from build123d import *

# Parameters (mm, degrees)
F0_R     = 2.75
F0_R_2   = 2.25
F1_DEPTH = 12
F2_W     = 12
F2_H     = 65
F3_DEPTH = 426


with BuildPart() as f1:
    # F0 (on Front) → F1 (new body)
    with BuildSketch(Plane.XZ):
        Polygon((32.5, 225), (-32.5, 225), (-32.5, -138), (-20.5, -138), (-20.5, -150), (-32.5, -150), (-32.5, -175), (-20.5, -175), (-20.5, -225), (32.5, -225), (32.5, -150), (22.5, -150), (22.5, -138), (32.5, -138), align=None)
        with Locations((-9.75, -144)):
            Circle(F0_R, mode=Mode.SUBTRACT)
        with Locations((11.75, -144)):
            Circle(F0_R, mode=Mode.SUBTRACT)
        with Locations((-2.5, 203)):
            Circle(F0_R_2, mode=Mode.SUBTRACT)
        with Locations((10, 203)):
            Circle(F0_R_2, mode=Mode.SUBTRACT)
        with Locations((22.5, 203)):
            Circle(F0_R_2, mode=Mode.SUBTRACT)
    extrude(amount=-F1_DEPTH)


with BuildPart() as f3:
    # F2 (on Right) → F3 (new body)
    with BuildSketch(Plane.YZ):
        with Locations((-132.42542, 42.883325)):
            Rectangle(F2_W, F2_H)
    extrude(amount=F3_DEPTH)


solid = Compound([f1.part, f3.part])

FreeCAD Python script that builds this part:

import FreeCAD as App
import Part
import Sketcher
Q = App.Units.Quantity


def add_polygon(sketch, points):
    """Adds a closed chain of lines whose ends are joined by coincident constraints."""
    first, n = sketch.GeometryCount, len(points)
    for a, b in zip(points, points[1:] + points[:1]):
        sketch.addGeometry(Part.LineSegment(App.Vector(*a, 0), App.Vector(*b, 0)), False)
    for i in range(n):
        sketch.addConstraint(Sketcher.Constraint("Coincident", first + i, 2, first + (i + 1) % n, 1))

doc = App.newDocument("Part")
body = doc.addObject("PartDesign::Body", "Body")

# Sketch on XZ plane
sketch1 = doc.addObject("Sketcher::SketchObject", "Sketch")
body.addObject(sketch1)
sketch1.AttachmentSupport = (doc.XZ_Plane, [""])
sketch1.MapMode = "FlatFace"
add_polygon(sketch1, [(32.5, 225), (-32.5, 225), (-32.5, -138), (-20.5, -138), (-20.5, -150), (-32.5, -150), (-32.5, -175), (-20.5, -175), (-20.5, -225), (32.5, -225), (32.5, -150), (22.5, -150), (22.5, -138), (32.5, -138)])  # lines 0-13
sketch1.addGeometry(Part.Circle(App.Vector(-9.75, -144, 0), App.Vector(0, 0, 1), 2.75), False)  # 14
sketch1.addGeometry(Part.Circle(App.Vector(11.75, -144, 0), App.Vector(0, 0, 1), 2.75), False)  # 15
sketch1.addGeometry(Part.Circle(App.Vector(-2.5, 203, 0), App.Vector(0, 0, 1), 2.25), False)  # 16
sketch1.addGeometry(Part.Circle(App.Vector(10, 203, 0), App.Vector(0, 0, 1), 2.25), False)  # 17
sketch1.addGeometry(Part.Circle(App.Vector(22.5, 203, 0), App.Vector(0, 0, 1), 2.25), False)  # 18
sketch1.addConstraint([
    Sketcher.Constraint("Horizontal", 0),
    Sketcher.Constraint("Vertical", 1),
    Sketcher.Constraint("Horizontal", 2),
    Sketcher.Constraint("Vertical", 3),
    Sketcher.Constraint("Horizontal", 4),
    Sketcher.Constraint("Vertical", 5),
    Sketcher.Constraint("Horizontal", 6),
    Sketcher.Constraint("Vertical", 7),
    Sketcher.Constraint("Horizontal", 8),
    Sketcher.Constraint("Vertical", 9),
    Sketcher.Constraint("Horizontal", 10),
    Sketcher.Constraint("Vertical", 11),
    Sketcher.Constraint("Horizontal", 12),
    Sketcher.Constraint("Vertical", 13),
    Sketcher.Constraint("Equal", 14, 15),
    Sketcher.Constraint("Equal", 16, 17),
    Sketcher.Constraint("Equal", 17, 18),
    Sketcher.Constraint("Symmetric", 0, 2, 8, 2, -1, 1),
    Sketcher.Constraint("Symmetric", 4, 2, 9, 2, -2),
    Sketcher.Constraint("Symmetric", 1, 2, 12, 2, -2),
    Sketcher.Constraint("Horizontal", 14, 3, 15, 3),
    Sketcher.Constraint("Horizontal", 16, 3, 17, 3),
    Sketcher.Constraint("Horizontal", 17, 3, 18, 3),
    Sketcher.Constraint("Vertical", 3, 2, 6, 2),
    Sketcher.Constraint("Vertical", 18, 3, 10, 2),
    Sketcher.Constraint("Equal", 6, 3),
    Sketcher.Constraint("Diameter", 14, Q("5.5 mm")),
    Sketcher.Constraint("Diameter", 16, Q("4.5 mm")),
    Sketcher.Constraint("DistanceX", 0, 2, 0, 1, Q("65 mm")),
    Sketcher.Constraint("DistanceX", 2, 1, 2, 2, Q("12 mm")),
    Sketcher.Constraint("DistanceX", 10, 2, 10, 1, Q("10 mm")),
    Sketcher.Constraint("DistanceY", 1, 2, 1, 1, Q("363 mm")),
    Sketcher.Constraint("DistanceY", 5, 2, 5, 1, Q("25 mm")),
    Sketcher.Constraint("DistanceY", 7, 2, 7, 1, Q("50 mm")),
    Sketcher.Constraint("DistanceY", 14, 3, -1, 1, Q("144 mm")),
    Sketcher.Constraint("DistanceY", -1, 1, 16, 3, Q("203 mm")),
    Sketcher.Constraint("DistanceX", -1, 1, 17, 3, Q("10 mm")),
    Sketcher.Constraint("DistanceX", 16, 3, 18, 3, Q("25 mm")),
    Sketcher.Constraint("DistanceX", 14, 3, 15, 3, Q("21.5 mm")),
    Sketcher.Constraint("DistanceX", 14, 3, -1, 1, Q("9.75 mm")),
])
pad1 = doc.addObject("PartDesign::Pad", "Pad")
body.addObject(pad1)
pad1.Profile = sketch1
pad1.Length = 12
pad1.Reversed = True
body2 = doc.addObject("PartDesign::Body", "Body001")

# Sketch on YZ plane
sketch2 = doc.addObject("Sketcher::SketchObject", "Sketch001")
body2.addObject(sketch2)
sketch2.AttachmentSupport = (doc.getObject("YZ_Plane001"), [""])
sketch2.MapMode = "FlatFace"
add_polygon(sketch2, [(-138.42542, 75.383325), (-138.42542, 10.383325), (-126.42542, 10.383325), (-126.42542, 75.383325)])  # lines 0-3
sketch2.addConstraint([
    Sketcher.Constraint("Vertical", 0),
    Sketcher.Constraint("Horizontal", 1),
    Sketcher.Constraint("Vertical", 2),
    Sketcher.Constraint("Horizontal", 3),
    Sketcher.Constraint("DistanceX", 1, 1, 1, 2, Q("12 mm")),
    Sketcher.Constraint("DistanceY", 0, 2, 0, 1, Q("65 mm")),
    Sketcher.Constraint("DistanceX", 0, 2, -1, 1, Q("138.42542 mm")),
    Sketcher.Constraint("DistanceY", -1, 1, 0, 2, Q("10.383325 mm")),
])
pad2 = doc.addObject("PartDesign::Pad", "Pad001")
body2.addObject(pad2)
pad2.Profile = sketch2
pad2.Length = 426

doc.recompute()
